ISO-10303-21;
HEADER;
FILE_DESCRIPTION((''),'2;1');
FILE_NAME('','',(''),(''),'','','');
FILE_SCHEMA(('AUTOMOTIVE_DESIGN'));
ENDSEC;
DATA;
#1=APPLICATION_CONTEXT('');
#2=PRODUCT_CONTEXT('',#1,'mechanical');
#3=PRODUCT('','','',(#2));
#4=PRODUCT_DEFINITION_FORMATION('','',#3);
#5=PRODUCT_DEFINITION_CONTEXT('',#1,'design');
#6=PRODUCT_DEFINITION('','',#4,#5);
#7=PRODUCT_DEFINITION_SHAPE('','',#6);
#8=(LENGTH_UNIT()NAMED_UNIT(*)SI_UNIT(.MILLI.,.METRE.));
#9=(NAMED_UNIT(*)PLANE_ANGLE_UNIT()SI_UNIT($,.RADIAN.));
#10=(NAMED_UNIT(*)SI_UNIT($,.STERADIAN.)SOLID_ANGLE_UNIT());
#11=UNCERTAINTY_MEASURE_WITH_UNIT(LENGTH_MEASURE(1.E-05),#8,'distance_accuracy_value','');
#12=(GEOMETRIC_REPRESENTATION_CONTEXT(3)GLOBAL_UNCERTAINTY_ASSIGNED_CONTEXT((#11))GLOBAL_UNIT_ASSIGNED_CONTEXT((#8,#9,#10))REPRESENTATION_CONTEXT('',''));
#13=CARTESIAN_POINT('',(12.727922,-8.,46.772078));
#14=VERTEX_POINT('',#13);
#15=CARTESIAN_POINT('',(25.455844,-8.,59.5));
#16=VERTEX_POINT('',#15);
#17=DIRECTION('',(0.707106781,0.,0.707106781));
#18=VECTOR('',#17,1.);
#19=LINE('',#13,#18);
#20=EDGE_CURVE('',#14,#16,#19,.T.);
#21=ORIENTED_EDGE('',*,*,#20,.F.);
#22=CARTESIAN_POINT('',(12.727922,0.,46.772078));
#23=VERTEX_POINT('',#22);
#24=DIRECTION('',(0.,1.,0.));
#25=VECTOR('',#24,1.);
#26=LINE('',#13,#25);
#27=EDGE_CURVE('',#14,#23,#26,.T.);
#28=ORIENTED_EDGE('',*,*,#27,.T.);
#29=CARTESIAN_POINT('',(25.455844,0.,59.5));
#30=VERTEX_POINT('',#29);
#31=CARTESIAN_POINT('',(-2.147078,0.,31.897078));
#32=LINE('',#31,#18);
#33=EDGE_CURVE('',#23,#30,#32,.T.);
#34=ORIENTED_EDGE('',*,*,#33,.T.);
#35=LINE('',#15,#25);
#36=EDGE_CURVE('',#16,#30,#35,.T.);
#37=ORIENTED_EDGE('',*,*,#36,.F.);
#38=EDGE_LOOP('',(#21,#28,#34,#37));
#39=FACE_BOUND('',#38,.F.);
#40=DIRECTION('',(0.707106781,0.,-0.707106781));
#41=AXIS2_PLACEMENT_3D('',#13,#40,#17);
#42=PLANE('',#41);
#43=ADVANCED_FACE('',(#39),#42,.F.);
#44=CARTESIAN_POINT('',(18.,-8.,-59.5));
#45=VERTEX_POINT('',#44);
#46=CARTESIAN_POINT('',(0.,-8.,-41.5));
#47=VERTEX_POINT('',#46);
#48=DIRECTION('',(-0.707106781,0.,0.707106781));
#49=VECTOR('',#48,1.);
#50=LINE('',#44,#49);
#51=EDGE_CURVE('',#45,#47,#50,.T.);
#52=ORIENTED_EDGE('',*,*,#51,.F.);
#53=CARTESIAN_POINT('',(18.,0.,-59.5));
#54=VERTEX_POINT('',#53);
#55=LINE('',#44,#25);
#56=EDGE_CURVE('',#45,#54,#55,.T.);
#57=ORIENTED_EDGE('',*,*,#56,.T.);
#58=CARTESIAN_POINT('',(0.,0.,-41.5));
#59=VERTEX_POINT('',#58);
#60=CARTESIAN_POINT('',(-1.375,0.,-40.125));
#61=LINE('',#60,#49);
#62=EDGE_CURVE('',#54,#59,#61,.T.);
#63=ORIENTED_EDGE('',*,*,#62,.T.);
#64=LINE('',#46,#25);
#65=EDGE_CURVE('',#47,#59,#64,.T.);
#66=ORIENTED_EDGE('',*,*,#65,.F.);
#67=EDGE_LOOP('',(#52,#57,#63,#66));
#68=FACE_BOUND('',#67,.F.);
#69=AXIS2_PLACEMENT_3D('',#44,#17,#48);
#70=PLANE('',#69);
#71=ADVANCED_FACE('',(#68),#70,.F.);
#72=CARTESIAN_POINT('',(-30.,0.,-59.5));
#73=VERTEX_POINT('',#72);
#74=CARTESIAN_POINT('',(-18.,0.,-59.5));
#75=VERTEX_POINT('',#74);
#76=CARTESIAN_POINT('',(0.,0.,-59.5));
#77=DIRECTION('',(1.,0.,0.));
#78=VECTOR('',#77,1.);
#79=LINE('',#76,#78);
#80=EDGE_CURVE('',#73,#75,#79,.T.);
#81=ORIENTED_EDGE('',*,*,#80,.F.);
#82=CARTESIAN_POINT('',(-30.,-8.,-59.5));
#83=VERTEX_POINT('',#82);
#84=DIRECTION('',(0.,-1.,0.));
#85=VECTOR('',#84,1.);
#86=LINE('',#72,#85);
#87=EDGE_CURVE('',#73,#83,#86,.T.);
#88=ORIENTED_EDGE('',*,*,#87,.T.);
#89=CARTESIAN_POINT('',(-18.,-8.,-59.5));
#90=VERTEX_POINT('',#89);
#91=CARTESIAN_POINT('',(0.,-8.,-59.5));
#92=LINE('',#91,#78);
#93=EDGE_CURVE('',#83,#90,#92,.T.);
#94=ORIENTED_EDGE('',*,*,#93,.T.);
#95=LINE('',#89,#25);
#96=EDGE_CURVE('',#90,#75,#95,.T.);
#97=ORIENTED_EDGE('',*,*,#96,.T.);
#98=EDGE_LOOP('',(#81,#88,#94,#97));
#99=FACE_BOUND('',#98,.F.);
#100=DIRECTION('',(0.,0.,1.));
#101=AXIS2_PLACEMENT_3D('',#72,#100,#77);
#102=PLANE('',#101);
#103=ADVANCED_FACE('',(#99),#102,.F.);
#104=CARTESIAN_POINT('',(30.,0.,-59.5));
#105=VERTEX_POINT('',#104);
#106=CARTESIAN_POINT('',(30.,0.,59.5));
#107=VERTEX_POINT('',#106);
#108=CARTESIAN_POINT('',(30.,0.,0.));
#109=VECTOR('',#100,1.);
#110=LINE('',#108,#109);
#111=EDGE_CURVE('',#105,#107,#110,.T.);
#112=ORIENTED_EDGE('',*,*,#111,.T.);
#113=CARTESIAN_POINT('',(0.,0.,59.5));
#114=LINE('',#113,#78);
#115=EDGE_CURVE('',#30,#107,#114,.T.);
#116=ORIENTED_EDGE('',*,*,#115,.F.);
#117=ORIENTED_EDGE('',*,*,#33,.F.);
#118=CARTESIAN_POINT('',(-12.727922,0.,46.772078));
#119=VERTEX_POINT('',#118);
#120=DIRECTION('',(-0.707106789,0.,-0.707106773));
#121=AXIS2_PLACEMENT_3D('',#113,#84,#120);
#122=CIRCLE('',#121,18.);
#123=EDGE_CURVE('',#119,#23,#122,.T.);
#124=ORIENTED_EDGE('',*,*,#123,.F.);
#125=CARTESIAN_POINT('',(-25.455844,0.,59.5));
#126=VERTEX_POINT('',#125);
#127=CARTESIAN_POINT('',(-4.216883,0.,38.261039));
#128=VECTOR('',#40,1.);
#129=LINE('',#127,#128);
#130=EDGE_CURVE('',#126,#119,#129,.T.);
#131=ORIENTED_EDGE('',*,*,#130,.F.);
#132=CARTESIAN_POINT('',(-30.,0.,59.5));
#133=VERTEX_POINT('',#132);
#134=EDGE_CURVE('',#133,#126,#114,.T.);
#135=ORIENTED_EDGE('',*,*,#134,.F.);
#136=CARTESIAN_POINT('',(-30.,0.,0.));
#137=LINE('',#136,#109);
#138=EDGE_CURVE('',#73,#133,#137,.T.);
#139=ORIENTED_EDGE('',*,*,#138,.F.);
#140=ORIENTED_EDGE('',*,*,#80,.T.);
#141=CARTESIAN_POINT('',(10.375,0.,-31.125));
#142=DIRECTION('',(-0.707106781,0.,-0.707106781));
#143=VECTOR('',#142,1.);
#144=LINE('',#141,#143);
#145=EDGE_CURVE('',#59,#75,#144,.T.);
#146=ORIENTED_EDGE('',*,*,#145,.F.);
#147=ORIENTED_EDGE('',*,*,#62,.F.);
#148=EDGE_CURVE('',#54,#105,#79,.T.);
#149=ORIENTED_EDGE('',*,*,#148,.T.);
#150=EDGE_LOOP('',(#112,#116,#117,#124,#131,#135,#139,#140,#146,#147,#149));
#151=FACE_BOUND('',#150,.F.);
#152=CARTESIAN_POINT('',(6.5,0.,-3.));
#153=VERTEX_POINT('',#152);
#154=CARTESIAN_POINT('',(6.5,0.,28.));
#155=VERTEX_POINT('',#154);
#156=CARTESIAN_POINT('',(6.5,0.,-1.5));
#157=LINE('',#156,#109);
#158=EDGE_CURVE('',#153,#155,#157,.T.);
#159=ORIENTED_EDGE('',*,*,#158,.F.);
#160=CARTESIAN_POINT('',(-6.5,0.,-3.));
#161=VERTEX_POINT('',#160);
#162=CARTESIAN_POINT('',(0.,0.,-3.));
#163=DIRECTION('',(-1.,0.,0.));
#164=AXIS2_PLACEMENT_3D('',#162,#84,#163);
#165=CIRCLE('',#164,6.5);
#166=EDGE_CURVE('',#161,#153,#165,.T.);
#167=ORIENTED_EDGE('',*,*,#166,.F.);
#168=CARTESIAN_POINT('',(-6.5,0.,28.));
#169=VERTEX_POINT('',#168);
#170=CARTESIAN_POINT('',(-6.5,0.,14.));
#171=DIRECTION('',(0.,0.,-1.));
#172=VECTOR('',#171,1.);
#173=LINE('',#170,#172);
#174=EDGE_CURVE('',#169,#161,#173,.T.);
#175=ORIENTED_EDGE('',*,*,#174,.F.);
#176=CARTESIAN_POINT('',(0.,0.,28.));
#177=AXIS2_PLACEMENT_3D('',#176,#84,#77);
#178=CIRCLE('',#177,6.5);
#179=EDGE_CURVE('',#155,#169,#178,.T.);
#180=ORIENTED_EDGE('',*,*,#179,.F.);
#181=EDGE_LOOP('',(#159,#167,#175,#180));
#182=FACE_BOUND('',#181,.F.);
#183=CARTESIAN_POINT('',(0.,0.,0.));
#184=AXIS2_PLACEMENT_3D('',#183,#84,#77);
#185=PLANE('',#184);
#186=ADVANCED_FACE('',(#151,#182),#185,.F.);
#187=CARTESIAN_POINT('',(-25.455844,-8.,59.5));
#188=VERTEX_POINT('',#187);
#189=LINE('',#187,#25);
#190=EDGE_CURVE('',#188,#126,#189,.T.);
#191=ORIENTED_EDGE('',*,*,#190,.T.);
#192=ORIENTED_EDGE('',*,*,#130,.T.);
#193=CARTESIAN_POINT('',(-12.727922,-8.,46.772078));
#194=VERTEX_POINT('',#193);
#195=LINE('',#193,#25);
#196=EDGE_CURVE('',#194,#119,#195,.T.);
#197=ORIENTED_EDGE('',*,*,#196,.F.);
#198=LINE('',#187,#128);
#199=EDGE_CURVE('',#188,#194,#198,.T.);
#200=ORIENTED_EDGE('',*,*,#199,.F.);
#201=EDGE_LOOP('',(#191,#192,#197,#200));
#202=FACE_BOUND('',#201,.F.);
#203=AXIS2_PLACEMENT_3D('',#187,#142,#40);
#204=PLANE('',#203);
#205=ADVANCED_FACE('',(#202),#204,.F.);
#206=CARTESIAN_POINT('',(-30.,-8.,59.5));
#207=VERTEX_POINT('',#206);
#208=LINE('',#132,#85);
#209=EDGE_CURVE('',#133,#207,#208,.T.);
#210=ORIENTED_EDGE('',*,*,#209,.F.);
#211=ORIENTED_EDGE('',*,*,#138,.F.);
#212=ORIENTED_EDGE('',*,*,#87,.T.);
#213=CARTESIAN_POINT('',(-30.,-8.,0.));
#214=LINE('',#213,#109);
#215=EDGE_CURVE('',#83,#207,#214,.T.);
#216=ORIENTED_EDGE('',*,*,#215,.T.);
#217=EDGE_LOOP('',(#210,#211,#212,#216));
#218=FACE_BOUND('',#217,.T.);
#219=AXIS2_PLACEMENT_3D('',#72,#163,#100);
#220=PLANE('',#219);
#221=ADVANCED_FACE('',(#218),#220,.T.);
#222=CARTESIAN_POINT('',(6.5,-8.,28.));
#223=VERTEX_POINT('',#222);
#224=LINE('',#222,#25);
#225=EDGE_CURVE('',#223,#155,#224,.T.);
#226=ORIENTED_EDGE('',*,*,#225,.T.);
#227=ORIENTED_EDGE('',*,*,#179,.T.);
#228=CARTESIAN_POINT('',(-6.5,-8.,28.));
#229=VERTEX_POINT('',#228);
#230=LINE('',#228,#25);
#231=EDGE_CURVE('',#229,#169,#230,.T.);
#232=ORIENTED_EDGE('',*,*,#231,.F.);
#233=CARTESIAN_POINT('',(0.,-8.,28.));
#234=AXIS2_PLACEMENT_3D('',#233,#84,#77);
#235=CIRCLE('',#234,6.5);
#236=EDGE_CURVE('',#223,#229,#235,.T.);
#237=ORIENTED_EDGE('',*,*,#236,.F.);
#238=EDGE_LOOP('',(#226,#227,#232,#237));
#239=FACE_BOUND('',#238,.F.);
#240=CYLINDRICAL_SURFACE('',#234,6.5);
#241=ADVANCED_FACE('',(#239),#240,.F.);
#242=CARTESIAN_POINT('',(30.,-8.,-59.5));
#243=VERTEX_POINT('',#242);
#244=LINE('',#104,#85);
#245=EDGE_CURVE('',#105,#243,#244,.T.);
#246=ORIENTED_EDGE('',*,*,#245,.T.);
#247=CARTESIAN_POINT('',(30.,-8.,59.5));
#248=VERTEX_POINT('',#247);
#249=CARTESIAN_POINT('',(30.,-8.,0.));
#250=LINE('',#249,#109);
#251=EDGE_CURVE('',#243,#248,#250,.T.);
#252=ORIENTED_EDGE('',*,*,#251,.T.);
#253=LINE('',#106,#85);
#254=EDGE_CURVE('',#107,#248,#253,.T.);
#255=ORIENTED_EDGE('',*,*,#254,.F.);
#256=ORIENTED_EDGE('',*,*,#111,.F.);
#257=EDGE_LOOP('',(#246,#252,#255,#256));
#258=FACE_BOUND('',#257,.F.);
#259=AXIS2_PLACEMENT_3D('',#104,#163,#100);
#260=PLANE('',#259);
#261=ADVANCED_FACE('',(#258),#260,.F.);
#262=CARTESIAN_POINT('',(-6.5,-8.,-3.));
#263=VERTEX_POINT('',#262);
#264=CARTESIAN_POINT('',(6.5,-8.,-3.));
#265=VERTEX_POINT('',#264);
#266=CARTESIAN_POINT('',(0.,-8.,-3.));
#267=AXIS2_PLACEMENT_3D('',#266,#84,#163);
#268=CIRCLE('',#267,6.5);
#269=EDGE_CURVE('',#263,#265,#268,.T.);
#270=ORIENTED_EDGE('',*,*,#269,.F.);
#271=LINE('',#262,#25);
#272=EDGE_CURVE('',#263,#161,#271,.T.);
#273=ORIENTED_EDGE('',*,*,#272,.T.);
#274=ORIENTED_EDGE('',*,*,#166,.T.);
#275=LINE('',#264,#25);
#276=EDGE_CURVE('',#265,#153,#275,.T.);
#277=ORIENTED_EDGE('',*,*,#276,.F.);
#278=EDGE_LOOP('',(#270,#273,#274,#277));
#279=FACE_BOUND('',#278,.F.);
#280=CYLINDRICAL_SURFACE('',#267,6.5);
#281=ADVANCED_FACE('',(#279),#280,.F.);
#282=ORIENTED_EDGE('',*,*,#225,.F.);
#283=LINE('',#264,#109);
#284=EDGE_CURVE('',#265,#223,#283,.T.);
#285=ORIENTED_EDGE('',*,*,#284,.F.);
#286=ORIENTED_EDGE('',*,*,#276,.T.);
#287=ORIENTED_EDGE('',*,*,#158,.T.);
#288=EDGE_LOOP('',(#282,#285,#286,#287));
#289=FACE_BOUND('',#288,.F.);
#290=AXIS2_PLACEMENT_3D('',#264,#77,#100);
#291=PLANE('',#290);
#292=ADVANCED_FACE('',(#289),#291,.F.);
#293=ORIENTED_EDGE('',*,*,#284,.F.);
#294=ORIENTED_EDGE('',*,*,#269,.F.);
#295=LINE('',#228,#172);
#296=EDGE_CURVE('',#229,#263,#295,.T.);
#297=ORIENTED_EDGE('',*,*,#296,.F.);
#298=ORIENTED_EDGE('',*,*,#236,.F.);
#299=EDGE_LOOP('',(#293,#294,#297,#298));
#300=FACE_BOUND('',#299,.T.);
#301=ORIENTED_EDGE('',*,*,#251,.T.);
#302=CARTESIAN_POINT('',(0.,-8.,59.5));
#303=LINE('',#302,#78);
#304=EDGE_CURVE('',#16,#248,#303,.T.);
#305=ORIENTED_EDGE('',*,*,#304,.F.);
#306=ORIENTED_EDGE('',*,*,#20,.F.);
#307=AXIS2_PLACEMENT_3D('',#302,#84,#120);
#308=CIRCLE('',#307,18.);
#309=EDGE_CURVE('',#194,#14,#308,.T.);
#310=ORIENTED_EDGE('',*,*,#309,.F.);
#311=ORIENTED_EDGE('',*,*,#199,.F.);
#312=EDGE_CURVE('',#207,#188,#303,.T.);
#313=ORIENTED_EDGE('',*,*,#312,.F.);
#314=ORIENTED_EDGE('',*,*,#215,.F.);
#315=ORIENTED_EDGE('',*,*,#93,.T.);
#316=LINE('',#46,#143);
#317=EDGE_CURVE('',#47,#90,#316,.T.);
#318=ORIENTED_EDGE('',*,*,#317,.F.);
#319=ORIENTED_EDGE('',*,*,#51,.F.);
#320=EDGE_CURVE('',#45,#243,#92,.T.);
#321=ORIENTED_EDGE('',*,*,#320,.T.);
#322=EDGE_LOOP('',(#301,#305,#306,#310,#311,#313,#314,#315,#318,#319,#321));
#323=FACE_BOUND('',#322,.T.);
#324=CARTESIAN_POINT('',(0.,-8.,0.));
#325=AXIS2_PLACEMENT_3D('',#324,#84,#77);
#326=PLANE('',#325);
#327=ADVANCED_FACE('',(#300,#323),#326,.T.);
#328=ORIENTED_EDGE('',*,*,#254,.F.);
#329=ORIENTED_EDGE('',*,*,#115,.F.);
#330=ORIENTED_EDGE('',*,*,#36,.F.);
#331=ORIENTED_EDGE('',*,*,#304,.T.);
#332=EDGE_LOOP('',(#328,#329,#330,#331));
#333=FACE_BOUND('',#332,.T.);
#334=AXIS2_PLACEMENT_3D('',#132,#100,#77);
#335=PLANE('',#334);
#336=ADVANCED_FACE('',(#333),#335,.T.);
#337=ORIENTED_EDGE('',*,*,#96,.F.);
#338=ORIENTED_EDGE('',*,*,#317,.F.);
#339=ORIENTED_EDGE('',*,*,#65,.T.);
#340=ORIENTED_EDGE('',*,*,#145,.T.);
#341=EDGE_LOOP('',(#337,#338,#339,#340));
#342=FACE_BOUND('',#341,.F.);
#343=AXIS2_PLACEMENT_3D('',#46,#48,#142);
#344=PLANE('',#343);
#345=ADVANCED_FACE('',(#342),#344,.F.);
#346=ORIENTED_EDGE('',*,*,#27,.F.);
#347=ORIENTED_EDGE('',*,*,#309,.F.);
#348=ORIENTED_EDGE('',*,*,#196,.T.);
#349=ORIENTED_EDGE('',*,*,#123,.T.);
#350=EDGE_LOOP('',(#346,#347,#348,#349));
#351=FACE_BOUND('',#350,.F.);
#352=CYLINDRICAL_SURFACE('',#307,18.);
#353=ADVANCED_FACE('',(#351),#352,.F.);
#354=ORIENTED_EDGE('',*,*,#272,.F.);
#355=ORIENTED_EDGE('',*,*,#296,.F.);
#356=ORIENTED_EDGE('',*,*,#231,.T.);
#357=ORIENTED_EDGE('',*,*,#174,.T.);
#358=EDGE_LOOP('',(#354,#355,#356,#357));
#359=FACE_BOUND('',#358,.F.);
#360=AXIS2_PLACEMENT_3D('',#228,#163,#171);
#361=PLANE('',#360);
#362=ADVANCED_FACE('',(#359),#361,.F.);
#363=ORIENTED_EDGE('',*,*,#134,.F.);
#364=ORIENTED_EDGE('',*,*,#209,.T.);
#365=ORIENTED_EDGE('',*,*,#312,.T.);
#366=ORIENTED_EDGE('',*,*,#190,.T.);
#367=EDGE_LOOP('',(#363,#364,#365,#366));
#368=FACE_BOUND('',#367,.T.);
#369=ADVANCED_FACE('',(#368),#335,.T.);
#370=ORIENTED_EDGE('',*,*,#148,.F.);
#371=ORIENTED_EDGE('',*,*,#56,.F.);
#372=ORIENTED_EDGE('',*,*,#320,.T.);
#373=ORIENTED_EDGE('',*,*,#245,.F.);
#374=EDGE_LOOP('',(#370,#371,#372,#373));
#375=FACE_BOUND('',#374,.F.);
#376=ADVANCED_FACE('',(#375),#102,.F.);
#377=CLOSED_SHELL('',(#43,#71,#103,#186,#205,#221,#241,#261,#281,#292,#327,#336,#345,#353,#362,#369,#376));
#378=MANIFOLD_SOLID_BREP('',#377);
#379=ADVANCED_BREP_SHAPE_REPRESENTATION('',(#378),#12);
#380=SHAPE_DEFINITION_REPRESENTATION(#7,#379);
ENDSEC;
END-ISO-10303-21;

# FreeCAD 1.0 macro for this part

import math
import FreeCAD as App
import Part
import Sketcher
from FreeCAD import Vector
Q = App.Units.Quantity

doc = App.newDocument("Part")
body = doc.addObject("PartDesign::Body", "Body")

# Sketch on XZ plane
sketch1 = body.newObject("Sketcher::SketchObject", "Sketch")
sketch1.AttachmentSupport = (doc.getObject("XZ_Plane"), [""])
sketch1.MapMode = "FlatFace"
sketch1.addGeometry([
    Part.LineSegment(Vector(-30, 59.5, 0), Vector(-30, -59.5, 0)),
    Part.LineSegment(Vector(-30, -59.5, 0), Vector(30, -59.5, 0)),
    Part.LineSegment(Vector(30, -59.5, 0), Vector(30, 59.5, 0)),
    Part.LineSegment(Vector(30, 59.5, 0), Vector(-30, 59.5, 0)),
], False)
sketch1.addConstraint([
    Sketcher.Constraint("Coincident", 0, 2, 1, 1),
    Sketcher.Constraint("Coincident", 1, 2, 2, 1),
    Sketcher.Constraint("Coincident", 2, 2, 3, 1),
    Sketcher.Constraint("Coincident", 3, 2, 0, 1),
    Sketcher.Constraint("Vertical", 0),
    Sketcher.Constraint("Horizontal", 1),
    Sketcher.Constraint("Vertical", 2),
    Sketcher.Constraint("Horizontal", 3),
    Sketcher.Constraint("Symmetric", 0, 2, 2, 2, -1, 1),
    Sketcher.Constraint("DistanceX", 1, 1, 1, 2, Q("60 mm")),
    Sketcher.Constraint("DistanceY", 0, 2, 0, 1, Q("119 mm")),
])
pad1 = body.newObject("PartDesign::Pad", "Pad")
pad1.Profile = sketch1
pad1.Length = 8

# Sketch on XZ plane
sketch2 = body.newObject("Sketcher::SketchObject", "Sketch001")
sketch2.AttachmentSupport = (doc.getObject("XZ_Plane"), [""])
sketch2.MapMode = "FlatFace"
sketch2.AttachmentOffset = App.Placement(Vector(0, 0, 8), App.Rotation())
sketch2.addGeometry([
    Part.ArcOfCircle(Part.Circle(Vector(0, 28, 0), Vector(0, 0, 1), 6.5), math.radians(0), math.radians(180)),  # 0
    Part.LineSegment(Vector(-6.5, 28, 0), Vector(-6.5, -3, 0)),  # 1
    Part.ArcOfCircle(Part.Circle(Vector(0, -3, 0), Vector(0, 0, 1), 6.5), math.radians(180), math.radians(360)),  # 2
    Part.LineSegment(Vector(6.5, -3, 0), Vector(6.5, 28, 0)),  # 3
    Part.LineSegment(Vector(-25.455844, 59.5, 0), Vector(-12.727922, 46.772078, 0)),  # 4
    Part.ArcOfCircle(Part.Circle(Vector(0, 59.5, 0), Vector(0, 0, 1), 18), math.radians(-135.000001), math.radians(-44.999999)),  # 5
    Part.LineSegment(Vector(12.727922, 46.772078, 0), Vector(25.455844, 59.5, 0)),  # 6
    Part.LineSegment(Vector(25.455844, 59.5, 0), Vector(-25.455844, 59.5, 0)),  # 7
    Part.LineSegment(Vector(18, -59.5, 0), Vector(0, -41.5, 0)),  # 8
    Part.LineSegment(Vector(0, -41.5, 0), Vector(-18, -59.5, 0)),  # 9
    Part.LineSegment(Vector(-18, -59.5, 0), Vector(18, -59.5, 0)),  # 10
], False)
sketch2.addConstraint([
    Sketcher.Constraint("Tangent", 0, 2, 1, 1),
    Sketcher.Constraint("Tangent", 1, 2, 2, 1),
    Sketcher.Constraint("Tangent", 2, 2, 3, 1),
    Sketcher.Constraint("Tangent", 3, 2, 0, 1),
    Sketcher.Constraint("Tangent", 4, 2, 5, 1),
    Sketcher.Constraint("Tangent", 5, 2, 6, 1),
    Sketcher.Constraint("Coincident", 6, 2, 7, 1),
    Sketcher.Constraint("Coincident", 7, 2, 4, 1),
    Sketcher.Constraint("Coincident", 8, 2, 9, 1),
    Sketcher.Constraint("Coincident", 9, 2, 10, 1),
    Sketcher.Constraint("Coincident", 10, 2, 8, 1),
    Sketcher.Constraint("Vertical", 1),
    Sketcher.Constraint("Vertical", 3),
    Sketcher.Constraint("Horizontal", 7),
    Sketcher.Constraint("Horizontal", 10),
    Sketcher.Constraint("Symmetric", 4, 2, 5, 2, -2),
    Sketcher.Constraint("PointOnObject", 0, 3, -2),
    Sketcher.Constraint("PointOnObject", 8, 2, -2),
    Sketcher.Constraint("Perpendicular", 4, 6),
    Sketcher.Constraint("Perpendicular", 6, 8),
    Sketcher.Constraint("Perpendicular", 8, 9),
    Sketcher.Constraint("Horizontal", 5, 3, 6, 2),
    Sketcher.Constraint("Radius", 5, Q("18 mm")),
    Sketcher.Constraint("Radius", 0, Q("6.5 mm")),
    Sketcher.Constraint("DistanceX", 10, 1, 10, 2, Q("36 mm")),
    Sketcher.Constraint("DistanceY", 1, 2, 1, 1, Q("31 mm")),
    Sketcher.Constraint("DistanceY", -1, 1, 0, 3, Q("28 mm")),
    Sketcher.Constraint("DistanceY", -1, 1, 5, 3, Q("59.5 mm")),
    Sketcher.Constraint("DistanceY", 8, 2, -1, 1, Q("41.5 mm")),
])
pocket1 = body.newObject("PartDesign::Pocket", "Pocket")
pocket1.Profile = sketch2
pocket1.Type = "ThroughAll"

doc.recompute()
